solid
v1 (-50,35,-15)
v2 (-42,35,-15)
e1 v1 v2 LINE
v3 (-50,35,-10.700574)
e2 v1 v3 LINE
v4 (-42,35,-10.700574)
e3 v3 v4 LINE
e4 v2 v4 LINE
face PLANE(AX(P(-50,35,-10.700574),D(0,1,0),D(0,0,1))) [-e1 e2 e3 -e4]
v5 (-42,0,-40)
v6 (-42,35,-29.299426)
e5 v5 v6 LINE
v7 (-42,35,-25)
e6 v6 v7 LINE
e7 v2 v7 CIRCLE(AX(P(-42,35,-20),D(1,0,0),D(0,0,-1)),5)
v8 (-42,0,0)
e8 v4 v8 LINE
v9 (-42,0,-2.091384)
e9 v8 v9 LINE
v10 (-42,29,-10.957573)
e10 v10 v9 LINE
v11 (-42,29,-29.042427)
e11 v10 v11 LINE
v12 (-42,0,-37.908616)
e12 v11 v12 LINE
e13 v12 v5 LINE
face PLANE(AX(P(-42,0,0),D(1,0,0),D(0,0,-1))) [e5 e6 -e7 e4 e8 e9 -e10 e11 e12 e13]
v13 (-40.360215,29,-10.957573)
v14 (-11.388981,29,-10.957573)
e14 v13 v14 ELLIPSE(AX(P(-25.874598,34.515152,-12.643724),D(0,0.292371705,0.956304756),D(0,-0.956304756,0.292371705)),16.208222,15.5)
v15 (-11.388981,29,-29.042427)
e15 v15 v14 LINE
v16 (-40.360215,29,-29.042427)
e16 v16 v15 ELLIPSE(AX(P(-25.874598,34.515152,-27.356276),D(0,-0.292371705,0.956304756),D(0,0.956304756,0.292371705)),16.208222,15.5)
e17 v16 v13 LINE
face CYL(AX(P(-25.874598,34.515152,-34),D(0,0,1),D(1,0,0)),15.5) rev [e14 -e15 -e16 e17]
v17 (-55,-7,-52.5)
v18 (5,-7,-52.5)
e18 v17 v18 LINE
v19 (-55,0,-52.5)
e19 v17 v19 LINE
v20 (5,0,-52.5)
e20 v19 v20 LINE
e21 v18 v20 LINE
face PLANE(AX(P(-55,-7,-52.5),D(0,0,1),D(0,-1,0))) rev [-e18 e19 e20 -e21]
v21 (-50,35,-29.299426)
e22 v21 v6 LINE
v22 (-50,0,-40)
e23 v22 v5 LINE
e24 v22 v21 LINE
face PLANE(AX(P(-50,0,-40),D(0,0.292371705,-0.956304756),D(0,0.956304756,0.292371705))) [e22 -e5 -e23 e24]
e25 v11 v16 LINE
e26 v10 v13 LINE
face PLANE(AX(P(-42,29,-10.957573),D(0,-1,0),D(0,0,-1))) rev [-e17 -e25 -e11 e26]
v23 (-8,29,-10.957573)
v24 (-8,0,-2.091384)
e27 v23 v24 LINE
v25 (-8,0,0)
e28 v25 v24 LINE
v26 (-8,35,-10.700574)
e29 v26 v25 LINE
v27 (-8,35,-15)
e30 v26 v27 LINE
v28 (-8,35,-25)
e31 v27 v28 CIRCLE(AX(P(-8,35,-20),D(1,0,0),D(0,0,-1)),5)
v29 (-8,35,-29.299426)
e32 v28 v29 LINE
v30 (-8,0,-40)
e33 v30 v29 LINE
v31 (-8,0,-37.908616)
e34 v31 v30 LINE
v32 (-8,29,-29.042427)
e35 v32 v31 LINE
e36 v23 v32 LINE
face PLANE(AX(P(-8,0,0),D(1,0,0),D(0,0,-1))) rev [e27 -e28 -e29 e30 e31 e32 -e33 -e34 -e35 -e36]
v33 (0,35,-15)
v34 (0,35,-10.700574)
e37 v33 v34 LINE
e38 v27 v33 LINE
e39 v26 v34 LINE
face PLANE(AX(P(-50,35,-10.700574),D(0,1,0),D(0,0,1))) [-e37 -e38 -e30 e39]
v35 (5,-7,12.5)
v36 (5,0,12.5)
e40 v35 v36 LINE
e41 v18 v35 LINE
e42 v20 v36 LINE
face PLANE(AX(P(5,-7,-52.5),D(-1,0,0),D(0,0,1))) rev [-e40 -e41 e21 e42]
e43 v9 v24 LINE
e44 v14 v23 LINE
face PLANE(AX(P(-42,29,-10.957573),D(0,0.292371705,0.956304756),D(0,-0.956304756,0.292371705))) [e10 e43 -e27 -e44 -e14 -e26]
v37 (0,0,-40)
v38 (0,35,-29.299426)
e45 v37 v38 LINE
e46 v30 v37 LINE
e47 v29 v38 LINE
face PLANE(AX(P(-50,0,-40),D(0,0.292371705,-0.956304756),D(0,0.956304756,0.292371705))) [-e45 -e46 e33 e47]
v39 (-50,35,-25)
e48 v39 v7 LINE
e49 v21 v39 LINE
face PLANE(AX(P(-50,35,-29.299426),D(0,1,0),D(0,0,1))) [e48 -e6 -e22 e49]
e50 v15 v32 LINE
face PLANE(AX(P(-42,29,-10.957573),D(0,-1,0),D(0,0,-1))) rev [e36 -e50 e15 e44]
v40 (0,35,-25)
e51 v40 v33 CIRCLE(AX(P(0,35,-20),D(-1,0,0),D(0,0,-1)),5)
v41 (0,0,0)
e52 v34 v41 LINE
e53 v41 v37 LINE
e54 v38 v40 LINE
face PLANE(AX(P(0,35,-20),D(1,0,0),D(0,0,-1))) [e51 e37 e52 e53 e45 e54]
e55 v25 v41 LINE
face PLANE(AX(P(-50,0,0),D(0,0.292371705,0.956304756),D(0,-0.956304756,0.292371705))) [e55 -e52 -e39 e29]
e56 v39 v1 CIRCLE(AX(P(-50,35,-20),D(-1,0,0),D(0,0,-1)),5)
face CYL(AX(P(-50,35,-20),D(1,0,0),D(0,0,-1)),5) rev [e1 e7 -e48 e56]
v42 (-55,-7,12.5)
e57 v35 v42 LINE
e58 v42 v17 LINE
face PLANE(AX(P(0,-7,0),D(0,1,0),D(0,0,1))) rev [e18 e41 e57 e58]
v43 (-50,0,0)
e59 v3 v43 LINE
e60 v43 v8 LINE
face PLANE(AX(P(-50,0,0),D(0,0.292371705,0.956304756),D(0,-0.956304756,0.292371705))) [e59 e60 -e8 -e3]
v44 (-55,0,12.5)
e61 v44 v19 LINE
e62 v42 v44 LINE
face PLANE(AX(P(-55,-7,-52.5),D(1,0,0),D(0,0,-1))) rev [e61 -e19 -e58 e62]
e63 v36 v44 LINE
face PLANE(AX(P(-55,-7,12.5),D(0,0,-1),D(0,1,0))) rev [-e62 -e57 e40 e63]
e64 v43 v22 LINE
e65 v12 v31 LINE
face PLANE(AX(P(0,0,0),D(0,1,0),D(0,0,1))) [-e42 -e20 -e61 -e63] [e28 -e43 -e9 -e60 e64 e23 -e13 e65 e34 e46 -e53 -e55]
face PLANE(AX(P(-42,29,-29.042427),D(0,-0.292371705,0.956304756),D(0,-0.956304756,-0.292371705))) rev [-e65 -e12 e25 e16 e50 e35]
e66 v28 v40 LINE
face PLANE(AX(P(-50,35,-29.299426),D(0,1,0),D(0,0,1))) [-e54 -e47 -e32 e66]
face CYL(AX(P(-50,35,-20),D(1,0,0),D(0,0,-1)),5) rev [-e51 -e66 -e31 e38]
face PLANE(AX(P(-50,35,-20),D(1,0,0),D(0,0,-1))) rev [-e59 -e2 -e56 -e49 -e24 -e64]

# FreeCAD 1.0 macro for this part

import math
import FreeCAD as App
import Part
import Sketcher

V = App.Vector
Q = App.Units.Quantity


def add_polygon(sketch, points):
    """Adds a closed chain of lines whose ends are joined by coincident constraints."""
    first, n = sketch.GeometryCount, len(points)
    for a, b in zip(points, points[1:] + points[:1]):
        sketch.addGeometry(Part.LineSegment(App.Vector(*a, 0), App.Vector(*b, 0)), False)
    for i in range(n):
        sketch.addConstraint(Sketcher.Constraint("Coincident", first + i, 2, first + (i + 1) % n, 1))

doc = App.newDocument("Part")
body = doc.addObject("PartDesign::Body", "Body")

# Sketch on YZ plane
sketch1 = body.newObject("Sketcher::SketchObject", "Sketch")
sketch1.AttachmentSupport = (doc.getObject("YZ_Plane"), [""])
sketch1.MapMode = "FlatFace"
sketch1.addGeometry([
    Part.LineSegment(V(0, 0, 0), V(0, -40, 0)),  # 0
    Part.LineSegment(V(0, -40, 0), V(35, -29.3, 0)),  # 1
    Part.LineSegment(V(35, -29.3, 0), V(35, -25, 0)),  # 2
    Part.ArcOfCircle(Part.Circle(V(35, -20, 0), V(0, 0, 1), 5), math.radians(90), math.radians(270)),  # 3
    Part.LineSegment(V(35, -15, 0), V(35, -10.7, 0)),  # 4
    Part.LineSegment(V(35, -10.7, 0), V(0, 0, 0)),  # 5
], False)
sketch1.addConstraint([
    Sketcher.Constraint("Coincident", 0, 2, 1, 1),
    Sketcher.Constraint("Coincident", 1, 2, 2, 1),
    Sketcher.Constraint("Coincident", 2, 2, 3, 2),
    Sketcher.Constraint("Coincident", 3, 1, 4, 1),
    Sketcher.Constraint("Coincident", 4, 2, 5, 1),
    Sketcher.Constraint("Coincident", 5, 2, 0, 1),
    Sketcher.Constraint("Vertical", 0),
    Sketcher.Constraint("Vertical", 2),
    Sketcher.Constraint("Vertical", 4),
    Sketcher.Constraint("Coincident", 5, 2, -1, 1),
    Sketcher.Constraint("Vertical", 3, 3, 1, 2),
    Sketcher.Constraint("Vertical", 2, 2, 3, 1),
    Sketcher.Constraint("Equal", 2, 4),
    Sketcher.Constraint("Equal", 1, 5),
    Sketcher.Constraint("Radius", 3, Q("5 mm")),
    Sketcher.Constraint("DistanceY", 0, 2, 0, 1, Q("40 mm")),
    Sketcher.Constraint("Angle", 1, Q("17 deg")),
    Sketcher.Constraint("DistanceX", -1, 1, 3, 3, Q("35 mm")),
])
pad1 = body.newObject("PartDesign::Pad", "Pad")
pad1.Profile = sketch1
pad1.Length = 50
pad1.Reversed = True

# Sketch on YZ plane
sketch2 = body.newObject("Sketcher::SketchObject", "Sketch001")
sketch2.AttachmentSupport = (doc.getObject("YZ_Plane"), [""])
sketch2.MapMode = "FlatFace"
sketch2.AttachmentOffset = App.Placement(V(0, 0, -8), App.Rotation())
add_polygon(sketch2, [(35, -10.7), (0, 0), (0, -2.1), (29, -11), (29, -29), (0, -37.9), (0, -40), (35, -29.3)])  # lines 0-7
sketch2.addConstraint([
    Sketcher.Constraint("Vertical", 1),
    Sketcher.Constraint("Vertical", 3),
    Sketcher.Constraint("Vertical", 5),
    Sketcher.Constraint("Vertical", 7),
    Sketcher.Constraint("Coincident", 0, 2, -1, 1),
    Sketcher.Constraint("PointOnObject", 4, 2, -2),
    Sketcher.Constraint("Parallel", 0, 2),
    Sketcher.Constraint("Parallel", 4, 6),
    Sketcher.Constraint("Equal", 1, 5),
    Sketcher.Constraint("Equal", 2, 4),
    Sketcher.Constraint("Angle", 0, Q("163 deg")),
    Sketcher.Constraint("DistanceX", -1, 1, 2, 2, Q("29 mm")),
    Sketcher.Constraint("DistanceY", 5, 2, -1, 1, Q("40 mm")),
    Sketcher.Constraint("DistanceX", -1, 1, 6, 2, Q("35 mm")),
    Sketcher.Constraint("DistanceY", 6, 2, 3, 2, Q("0.256999 mm")),
])
pocket1 = body.newObject("PartDesign::Pocket", "Pocket")
pocket1.Profile = sketch2
pocket1.Length = 34

# Sketch on XY plane
sketch3 = body.newObject("Sketcher::SketchObject", "Sketch002")
sketch3.AttachmentSupport = (doc.getObject("XY_Plane"), [""])
sketch3.MapMode = "FlatFace"
sketch3.addGeometry([
    Part.LineSegment(V(-11, 29, 0), V(-40, 29, 0)),
    Part.ArcOfCircle(Part.Circle(V(-26, 35, 0), V(0, 0, 1), 15), math.radians(-159), math.radians(-21)),
], False)
sketch3.addConstraint([
    Sketcher.Constraint("Coincident", 0, 1, 1, 2),
    Sketcher.Constraint("Coincident", 1, 1, 0, 2),
    Sketcher.Constraint("Horizontal", 0),
    Sketcher.Constraint("Radius", 1, Q("15.5 mm")),
    Sketcher.Constraint("DistanceY", -1, 1, 0, 1, Q("29 mm")),
    Sketcher.Constraint("DistanceX", 1, 3, -1, 1, Q("25.874598 mm")),
    Sketcher.Constraint("DistanceX", 0, 2, 0, 1, Q("28.971234 mm")),
])
pocket2 = body.newObject("PartDesign::Pocket", "Pocket001")
pocket2.Profile = sketch3
pocket2.Length = 34

# Sketch on XZ plane
sketch4 = body.newObject("Sketcher::SketchObject", "Sketch003")
sketch4.AttachmentSupport = (doc.getObject("XZ_Plane"), [""])
sketch4.MapMode = "FlatFace"
add_polygon(sketch4, [(-55, 12), (-55, -52), (5, -52), (5, 12)])  # lines 0-3
sketch4.addConstraint([
    Sketcher.Constraint("Vertical", 0),
    Sketcher.Constraint("Horizontal", 1),
    Sketcher.Constraint("Vertical", 2),
    Sketcher.Constraint("Horizontal", 3),
    Sketcher.Constraint("DistanceX", 1, 1, 1, 2, Q("60 mm")),
    Sketcher.Constraint("DistanceY", 0, 2, 0, 1, Q("65 mm")),
    Sketcher.Constraint("DistanceX", 0, 2, -1, 1, Q("55 mm")),
    Sketcher.Constraint("DistanceY", 0, 2, -1, 1, Q("52.5 mm")),
])
pad2 = body.newObject("PartDesign::Pad", "Pad001")
pad2.Profile = sketch4
pad2.Length = 7

doc.recompute()
